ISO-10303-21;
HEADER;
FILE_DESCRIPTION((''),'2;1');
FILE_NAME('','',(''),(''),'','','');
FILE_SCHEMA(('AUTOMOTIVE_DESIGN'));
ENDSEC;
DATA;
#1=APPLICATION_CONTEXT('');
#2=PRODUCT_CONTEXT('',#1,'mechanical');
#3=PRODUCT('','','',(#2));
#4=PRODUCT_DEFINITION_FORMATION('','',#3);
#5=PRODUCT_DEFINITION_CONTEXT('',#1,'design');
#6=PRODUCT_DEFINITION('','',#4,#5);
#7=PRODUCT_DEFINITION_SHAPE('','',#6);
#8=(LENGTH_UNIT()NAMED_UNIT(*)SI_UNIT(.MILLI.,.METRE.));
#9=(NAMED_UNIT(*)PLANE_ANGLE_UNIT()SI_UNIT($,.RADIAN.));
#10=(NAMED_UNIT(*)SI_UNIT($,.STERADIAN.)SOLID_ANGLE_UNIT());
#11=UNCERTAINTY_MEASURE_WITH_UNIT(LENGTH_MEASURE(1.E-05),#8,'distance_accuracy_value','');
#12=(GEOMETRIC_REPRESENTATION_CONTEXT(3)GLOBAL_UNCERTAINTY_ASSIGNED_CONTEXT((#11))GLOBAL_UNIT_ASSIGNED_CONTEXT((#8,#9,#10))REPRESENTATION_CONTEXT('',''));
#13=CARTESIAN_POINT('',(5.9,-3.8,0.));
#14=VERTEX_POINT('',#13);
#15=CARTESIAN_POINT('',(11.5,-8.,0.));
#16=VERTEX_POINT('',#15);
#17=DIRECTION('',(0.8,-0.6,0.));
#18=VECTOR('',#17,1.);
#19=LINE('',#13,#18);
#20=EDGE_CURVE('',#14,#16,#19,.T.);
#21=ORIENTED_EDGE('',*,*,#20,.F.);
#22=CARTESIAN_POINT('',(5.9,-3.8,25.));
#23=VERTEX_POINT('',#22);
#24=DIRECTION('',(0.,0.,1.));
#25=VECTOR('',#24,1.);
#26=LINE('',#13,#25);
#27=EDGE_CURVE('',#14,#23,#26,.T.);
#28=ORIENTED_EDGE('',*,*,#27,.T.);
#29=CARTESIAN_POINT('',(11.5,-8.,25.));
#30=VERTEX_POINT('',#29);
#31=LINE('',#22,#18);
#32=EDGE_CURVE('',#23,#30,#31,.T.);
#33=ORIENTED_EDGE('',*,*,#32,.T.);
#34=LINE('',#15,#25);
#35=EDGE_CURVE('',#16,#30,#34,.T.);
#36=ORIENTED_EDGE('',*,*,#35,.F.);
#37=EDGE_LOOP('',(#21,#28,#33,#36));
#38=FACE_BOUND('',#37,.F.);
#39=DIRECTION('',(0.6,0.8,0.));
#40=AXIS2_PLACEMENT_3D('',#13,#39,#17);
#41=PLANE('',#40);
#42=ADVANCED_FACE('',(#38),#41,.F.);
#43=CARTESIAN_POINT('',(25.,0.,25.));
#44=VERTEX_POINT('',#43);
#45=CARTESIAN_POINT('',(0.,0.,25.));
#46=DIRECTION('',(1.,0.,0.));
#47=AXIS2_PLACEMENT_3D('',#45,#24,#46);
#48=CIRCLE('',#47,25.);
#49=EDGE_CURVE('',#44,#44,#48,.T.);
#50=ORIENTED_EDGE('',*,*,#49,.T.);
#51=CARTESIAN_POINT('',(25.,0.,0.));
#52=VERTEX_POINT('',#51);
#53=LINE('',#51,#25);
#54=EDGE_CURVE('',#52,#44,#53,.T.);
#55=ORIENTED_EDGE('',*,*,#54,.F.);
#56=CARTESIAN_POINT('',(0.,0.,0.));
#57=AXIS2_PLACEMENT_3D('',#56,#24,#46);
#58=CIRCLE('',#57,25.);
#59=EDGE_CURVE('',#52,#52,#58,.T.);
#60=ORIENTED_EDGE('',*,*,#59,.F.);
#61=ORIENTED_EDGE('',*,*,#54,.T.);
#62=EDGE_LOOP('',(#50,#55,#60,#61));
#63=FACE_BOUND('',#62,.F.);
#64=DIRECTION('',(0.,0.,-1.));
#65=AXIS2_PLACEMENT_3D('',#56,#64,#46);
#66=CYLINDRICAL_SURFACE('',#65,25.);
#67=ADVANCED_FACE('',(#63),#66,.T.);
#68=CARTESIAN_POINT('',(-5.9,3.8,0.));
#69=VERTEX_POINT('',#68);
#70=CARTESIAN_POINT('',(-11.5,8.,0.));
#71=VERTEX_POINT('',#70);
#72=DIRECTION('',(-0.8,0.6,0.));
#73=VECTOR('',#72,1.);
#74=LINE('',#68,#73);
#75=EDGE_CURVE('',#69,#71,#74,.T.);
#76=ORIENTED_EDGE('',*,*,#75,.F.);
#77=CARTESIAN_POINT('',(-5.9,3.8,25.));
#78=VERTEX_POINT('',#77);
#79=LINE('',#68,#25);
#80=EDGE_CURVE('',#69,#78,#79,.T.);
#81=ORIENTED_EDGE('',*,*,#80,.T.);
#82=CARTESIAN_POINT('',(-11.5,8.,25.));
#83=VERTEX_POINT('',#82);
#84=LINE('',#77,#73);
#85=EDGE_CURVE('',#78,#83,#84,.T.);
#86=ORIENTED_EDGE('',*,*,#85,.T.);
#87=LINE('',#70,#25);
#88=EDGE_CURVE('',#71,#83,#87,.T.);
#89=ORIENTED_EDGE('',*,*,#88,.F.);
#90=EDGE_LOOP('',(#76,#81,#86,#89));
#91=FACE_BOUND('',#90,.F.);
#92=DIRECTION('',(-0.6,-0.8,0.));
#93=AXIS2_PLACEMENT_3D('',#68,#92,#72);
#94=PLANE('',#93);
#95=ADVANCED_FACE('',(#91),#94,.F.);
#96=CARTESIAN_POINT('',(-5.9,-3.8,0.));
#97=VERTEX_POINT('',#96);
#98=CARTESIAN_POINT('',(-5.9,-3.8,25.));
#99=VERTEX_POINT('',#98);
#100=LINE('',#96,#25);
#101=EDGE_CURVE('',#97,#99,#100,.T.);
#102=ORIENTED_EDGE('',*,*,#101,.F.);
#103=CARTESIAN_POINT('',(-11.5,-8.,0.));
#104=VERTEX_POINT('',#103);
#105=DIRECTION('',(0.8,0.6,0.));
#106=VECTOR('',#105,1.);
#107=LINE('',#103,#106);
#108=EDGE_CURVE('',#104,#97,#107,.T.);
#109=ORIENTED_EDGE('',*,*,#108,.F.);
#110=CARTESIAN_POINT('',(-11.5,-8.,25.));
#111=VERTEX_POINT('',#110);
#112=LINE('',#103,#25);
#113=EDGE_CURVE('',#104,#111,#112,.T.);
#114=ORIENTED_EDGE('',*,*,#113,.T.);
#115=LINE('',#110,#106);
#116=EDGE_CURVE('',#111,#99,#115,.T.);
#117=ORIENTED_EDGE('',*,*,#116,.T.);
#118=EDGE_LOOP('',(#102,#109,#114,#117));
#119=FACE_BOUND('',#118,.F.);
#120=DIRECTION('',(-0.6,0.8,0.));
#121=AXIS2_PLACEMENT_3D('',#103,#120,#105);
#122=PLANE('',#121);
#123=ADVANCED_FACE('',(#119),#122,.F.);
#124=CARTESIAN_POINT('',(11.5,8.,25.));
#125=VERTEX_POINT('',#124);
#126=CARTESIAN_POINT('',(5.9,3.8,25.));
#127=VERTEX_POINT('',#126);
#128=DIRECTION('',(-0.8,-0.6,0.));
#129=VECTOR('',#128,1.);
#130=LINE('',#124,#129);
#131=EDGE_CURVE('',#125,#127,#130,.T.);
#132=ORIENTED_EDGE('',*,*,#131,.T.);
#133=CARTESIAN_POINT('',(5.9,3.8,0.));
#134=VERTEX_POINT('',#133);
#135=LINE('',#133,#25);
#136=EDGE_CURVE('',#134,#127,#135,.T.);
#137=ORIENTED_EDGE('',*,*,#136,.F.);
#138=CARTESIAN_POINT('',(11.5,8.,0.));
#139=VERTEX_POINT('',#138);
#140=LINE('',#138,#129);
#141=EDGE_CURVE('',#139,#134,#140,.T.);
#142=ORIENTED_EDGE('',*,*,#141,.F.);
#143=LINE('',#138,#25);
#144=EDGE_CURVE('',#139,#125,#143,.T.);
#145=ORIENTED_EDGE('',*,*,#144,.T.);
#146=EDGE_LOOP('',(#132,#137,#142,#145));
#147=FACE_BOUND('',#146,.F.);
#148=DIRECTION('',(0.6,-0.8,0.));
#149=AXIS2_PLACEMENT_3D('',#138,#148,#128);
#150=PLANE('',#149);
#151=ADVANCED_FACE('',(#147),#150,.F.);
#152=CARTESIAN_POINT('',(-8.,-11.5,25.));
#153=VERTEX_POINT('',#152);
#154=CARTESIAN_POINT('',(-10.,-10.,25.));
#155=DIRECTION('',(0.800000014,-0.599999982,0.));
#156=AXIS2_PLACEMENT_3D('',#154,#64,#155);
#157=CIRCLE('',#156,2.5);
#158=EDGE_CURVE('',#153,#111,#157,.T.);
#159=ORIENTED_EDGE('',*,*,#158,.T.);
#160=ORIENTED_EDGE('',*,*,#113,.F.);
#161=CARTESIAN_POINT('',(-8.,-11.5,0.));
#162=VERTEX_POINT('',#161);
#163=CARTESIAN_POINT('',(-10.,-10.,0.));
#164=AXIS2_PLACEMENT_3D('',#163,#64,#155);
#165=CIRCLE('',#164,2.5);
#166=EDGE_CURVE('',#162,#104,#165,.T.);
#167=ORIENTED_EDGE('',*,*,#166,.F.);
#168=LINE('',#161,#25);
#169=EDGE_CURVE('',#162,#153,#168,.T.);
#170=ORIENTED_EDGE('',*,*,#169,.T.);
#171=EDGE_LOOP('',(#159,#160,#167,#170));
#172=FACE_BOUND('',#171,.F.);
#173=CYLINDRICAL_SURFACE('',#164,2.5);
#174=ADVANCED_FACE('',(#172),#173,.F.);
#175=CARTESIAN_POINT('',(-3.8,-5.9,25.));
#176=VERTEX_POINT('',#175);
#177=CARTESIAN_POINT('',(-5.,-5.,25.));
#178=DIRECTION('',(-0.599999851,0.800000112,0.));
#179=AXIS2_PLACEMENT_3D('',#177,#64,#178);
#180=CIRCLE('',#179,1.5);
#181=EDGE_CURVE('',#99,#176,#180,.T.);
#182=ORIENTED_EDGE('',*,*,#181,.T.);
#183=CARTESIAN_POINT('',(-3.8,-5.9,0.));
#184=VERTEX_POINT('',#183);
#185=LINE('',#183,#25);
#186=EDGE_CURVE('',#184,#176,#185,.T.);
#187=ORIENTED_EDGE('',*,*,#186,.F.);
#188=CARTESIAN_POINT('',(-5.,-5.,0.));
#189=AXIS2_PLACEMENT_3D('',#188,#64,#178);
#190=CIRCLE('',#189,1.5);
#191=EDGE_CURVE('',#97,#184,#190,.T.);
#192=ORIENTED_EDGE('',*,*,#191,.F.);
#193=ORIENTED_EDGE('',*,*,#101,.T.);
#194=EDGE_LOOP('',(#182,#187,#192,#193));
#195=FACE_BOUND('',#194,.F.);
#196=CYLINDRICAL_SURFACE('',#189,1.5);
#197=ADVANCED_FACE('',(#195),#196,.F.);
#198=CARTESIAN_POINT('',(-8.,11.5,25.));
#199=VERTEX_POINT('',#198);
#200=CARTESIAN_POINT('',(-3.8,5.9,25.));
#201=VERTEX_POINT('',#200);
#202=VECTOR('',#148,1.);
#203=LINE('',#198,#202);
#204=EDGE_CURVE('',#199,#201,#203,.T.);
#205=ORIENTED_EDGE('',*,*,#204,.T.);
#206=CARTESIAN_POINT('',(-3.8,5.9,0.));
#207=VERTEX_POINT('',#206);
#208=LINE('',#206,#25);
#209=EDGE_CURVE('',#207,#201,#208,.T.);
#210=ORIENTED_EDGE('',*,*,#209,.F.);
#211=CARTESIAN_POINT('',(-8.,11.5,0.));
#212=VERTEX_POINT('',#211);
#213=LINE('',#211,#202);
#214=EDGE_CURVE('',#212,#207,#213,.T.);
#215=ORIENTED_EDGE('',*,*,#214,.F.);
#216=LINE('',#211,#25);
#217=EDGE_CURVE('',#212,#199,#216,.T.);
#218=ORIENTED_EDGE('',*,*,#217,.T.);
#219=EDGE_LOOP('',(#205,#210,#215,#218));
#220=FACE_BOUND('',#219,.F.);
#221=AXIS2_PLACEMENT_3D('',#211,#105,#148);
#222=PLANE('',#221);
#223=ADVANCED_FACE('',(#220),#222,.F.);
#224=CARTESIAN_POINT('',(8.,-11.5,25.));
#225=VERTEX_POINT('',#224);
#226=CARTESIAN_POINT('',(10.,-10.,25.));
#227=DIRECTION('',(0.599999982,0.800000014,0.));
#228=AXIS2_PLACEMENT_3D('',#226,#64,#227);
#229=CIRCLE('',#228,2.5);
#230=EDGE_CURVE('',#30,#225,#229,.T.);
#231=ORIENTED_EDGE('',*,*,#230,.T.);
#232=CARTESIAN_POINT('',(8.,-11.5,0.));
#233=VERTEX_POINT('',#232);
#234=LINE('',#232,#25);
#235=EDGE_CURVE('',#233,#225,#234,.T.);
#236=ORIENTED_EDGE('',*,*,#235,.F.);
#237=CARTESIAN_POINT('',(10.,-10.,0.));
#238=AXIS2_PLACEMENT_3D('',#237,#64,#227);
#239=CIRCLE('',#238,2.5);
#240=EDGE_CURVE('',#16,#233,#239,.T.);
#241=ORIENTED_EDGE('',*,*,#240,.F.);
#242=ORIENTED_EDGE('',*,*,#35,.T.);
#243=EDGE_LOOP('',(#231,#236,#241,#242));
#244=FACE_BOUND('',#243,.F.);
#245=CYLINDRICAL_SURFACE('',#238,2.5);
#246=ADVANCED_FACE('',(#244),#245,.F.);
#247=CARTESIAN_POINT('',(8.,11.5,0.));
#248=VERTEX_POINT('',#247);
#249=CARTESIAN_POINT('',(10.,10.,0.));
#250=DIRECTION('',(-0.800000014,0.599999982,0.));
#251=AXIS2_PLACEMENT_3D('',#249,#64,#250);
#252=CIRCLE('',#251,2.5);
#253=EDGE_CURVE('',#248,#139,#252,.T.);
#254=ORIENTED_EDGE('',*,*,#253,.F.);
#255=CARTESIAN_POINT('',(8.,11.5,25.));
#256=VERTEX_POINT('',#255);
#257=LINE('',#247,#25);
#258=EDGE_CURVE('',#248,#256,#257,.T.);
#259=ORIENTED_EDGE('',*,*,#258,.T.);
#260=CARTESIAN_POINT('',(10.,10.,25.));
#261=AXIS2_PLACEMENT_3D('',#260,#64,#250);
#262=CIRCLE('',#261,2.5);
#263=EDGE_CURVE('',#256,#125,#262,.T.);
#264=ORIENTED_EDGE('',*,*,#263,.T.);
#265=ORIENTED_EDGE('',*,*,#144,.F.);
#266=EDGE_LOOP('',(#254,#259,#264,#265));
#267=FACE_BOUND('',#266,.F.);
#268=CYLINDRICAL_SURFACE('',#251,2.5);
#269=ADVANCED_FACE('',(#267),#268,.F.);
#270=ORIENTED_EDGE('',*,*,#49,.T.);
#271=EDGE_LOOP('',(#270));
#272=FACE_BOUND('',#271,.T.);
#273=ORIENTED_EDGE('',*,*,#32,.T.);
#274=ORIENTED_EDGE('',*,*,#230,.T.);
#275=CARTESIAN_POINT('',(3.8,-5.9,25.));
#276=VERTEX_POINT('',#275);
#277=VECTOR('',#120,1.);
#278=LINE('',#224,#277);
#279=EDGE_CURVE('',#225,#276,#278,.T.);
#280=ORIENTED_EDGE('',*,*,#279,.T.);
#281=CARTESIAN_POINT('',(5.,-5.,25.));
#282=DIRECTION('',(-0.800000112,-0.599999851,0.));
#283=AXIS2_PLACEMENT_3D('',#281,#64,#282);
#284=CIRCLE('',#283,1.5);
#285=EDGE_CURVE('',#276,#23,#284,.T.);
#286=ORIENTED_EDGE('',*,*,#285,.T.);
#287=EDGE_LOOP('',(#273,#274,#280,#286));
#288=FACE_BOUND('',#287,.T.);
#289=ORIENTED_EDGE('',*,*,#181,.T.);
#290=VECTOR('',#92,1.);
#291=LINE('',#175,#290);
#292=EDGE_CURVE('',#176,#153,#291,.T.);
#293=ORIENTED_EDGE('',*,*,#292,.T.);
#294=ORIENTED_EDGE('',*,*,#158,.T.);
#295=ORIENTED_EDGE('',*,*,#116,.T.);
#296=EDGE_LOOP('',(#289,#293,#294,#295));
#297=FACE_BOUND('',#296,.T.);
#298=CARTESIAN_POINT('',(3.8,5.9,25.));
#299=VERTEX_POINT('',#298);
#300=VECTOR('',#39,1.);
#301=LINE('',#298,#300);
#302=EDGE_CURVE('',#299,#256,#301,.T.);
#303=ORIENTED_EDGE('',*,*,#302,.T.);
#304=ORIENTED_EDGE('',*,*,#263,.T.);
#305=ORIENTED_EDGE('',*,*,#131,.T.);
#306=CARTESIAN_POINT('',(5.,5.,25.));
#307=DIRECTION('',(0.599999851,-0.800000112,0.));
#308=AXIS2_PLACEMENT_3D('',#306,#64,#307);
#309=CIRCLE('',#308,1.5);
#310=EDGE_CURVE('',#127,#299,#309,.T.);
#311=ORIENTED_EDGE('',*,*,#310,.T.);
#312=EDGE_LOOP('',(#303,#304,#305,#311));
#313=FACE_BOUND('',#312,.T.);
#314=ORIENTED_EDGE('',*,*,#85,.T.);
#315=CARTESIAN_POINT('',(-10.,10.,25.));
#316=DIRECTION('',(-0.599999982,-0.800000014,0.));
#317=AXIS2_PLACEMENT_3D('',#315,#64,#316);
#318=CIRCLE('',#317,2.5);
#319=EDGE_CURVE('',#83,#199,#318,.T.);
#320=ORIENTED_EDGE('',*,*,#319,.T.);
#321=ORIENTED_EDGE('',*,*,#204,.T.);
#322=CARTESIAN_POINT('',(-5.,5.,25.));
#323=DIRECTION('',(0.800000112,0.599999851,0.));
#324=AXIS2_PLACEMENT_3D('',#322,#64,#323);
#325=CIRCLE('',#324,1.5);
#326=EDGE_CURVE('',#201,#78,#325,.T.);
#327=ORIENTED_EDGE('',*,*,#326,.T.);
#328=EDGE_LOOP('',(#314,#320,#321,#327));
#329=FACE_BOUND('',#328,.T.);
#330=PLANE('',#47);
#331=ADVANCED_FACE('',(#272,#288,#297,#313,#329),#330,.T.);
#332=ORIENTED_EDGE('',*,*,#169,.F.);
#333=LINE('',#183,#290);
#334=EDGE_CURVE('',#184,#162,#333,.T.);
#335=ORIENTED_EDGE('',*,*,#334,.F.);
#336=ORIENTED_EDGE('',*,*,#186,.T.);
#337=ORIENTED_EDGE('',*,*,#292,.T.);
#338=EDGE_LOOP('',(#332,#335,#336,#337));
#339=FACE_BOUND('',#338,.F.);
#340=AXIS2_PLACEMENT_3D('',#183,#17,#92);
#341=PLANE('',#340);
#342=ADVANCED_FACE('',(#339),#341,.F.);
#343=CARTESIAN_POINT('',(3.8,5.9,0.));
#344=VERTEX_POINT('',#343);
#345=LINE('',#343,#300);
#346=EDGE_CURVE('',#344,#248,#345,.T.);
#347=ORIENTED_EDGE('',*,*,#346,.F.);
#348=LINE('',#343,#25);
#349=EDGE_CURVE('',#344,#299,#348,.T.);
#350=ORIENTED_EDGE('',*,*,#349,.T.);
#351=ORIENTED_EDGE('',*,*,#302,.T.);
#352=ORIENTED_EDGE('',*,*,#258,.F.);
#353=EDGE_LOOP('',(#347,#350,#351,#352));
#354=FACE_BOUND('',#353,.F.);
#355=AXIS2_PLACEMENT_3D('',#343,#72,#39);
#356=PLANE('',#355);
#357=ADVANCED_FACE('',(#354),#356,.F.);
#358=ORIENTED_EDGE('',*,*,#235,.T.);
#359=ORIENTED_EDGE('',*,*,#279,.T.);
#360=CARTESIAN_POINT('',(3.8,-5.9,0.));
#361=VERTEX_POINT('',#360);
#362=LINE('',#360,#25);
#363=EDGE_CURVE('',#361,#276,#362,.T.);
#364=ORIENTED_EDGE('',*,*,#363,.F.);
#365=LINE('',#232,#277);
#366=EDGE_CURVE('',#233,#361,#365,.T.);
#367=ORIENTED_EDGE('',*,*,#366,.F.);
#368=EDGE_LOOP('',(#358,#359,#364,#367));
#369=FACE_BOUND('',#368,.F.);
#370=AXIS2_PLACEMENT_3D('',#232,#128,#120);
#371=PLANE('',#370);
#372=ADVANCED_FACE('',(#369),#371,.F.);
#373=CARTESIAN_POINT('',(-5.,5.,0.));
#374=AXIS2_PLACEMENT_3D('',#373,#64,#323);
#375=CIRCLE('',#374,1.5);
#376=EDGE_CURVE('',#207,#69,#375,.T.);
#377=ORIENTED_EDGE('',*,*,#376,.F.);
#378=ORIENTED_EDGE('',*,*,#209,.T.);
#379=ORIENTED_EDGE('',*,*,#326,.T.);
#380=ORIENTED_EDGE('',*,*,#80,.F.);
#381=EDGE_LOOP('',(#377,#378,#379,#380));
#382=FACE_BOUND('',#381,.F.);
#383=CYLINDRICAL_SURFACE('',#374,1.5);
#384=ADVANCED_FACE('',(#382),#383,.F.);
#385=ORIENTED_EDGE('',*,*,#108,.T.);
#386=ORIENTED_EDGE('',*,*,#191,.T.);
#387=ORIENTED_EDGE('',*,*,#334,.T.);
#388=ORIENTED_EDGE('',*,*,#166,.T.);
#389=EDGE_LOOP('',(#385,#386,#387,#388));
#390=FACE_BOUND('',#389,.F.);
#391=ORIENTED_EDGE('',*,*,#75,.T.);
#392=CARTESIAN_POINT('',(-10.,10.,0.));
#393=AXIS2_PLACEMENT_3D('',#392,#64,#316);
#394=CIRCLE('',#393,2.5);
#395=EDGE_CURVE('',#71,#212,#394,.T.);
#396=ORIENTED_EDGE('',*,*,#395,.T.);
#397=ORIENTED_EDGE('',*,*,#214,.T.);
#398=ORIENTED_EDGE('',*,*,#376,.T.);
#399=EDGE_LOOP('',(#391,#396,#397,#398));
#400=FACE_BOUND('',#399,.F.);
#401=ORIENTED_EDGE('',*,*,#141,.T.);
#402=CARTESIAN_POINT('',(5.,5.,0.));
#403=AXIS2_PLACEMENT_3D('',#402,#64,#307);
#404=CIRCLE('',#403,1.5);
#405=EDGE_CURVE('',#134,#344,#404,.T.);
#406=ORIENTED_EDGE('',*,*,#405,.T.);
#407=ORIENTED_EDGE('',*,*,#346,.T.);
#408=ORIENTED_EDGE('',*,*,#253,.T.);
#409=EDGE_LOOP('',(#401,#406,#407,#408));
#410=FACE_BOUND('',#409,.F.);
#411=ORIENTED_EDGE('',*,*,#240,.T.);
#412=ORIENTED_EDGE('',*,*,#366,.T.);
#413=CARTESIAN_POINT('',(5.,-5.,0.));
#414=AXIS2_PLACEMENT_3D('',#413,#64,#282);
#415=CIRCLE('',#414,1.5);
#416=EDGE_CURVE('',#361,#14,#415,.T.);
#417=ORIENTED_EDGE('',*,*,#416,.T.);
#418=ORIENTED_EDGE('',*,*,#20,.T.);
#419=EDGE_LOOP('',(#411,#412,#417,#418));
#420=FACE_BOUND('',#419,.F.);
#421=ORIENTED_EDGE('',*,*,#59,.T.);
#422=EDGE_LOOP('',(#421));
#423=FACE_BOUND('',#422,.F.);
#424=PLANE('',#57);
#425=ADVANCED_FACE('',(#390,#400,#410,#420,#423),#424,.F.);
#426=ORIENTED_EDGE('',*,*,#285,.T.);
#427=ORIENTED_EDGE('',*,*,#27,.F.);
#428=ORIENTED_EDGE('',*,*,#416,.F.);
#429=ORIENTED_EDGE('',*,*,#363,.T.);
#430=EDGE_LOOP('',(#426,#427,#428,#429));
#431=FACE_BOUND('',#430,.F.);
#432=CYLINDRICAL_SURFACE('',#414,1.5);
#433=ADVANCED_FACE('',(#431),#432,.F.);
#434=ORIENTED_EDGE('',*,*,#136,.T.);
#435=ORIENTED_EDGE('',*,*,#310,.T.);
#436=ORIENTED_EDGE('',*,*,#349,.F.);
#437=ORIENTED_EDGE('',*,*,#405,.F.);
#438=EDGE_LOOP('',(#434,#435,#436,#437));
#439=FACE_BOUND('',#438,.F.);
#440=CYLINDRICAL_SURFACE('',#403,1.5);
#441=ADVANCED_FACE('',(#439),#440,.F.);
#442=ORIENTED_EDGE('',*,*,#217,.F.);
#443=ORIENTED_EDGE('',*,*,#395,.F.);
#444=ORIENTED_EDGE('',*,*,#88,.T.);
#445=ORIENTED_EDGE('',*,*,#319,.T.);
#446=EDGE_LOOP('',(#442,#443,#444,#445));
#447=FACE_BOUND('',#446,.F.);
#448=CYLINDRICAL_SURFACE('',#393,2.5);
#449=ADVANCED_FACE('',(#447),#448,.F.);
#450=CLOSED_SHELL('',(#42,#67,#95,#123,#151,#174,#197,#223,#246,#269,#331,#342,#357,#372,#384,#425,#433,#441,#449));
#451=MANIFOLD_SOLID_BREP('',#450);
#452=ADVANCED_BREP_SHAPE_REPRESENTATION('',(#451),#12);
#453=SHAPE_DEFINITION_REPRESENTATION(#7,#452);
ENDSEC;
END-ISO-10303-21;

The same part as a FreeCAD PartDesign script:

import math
import FreeCAD as App
import Part
import Sketcher
Q = App.Units.Quantity

doc = App.newDocument("Part")
body = doc.addObject("PartDesign::Body", "Body")

# Sketch on XY plane
sketch1 = body.newObject("Sketcher::SketchObject", "Sketch")
sketch1.AttachmentSupport = (doc.getObject("XY_Plane"), [""])
sketch1.MapMode = "FlatFace"
sketch1.addGeometry(Part.Circle(App.Vector(0, 0, 0), App.Vector(0, 0, 1), 25), False)
sketch1.addGeometry(Part.ArcOfCircle(Part.Circle(App.Vector(-10, -10, 0), App.Vector(0, 0, 1), 2.5), math.radians(127), math.radians(323)), False)
sketch1.addGeometry(Part.LineSegment(App.Vector(-11.5, -8, 0), App.Vector(-5.9, -3.8, 0)), False)
sketch1.addGeometry(Part.ArcOfCircle(Part.Circle(App.Vector(-5, -5, 0), App.Vector(0, 0, 1), 1.5), math.radians(-37), math.radians(127)), False)
sketch1.addGeometry(Part.LineSegment(App.Vector(-3.8, -5.9, 0), App.Vector(-8, -11.5, 0)), False)
sketch1.addGeometry(Part.LineSegment(App.Vector(5.9, -3.8, 0), App.Vector(11.5, -8, 0)), False)
sketch1.addGeometry(Part.ArcOfCircle(Part.Circle(App.Vector(10, -10, 0), App.Vector(0, 0, 1), 2.5), math.radians(-143), math.radians(53)), False)
sketch1.addGeometry(Part.LineSegment(App.Vector(8, -11.5, 0), App.Vector(3.8, -5.9, 0)), False)
sketch1.addGeometry(Part.ArcOfCircle(Part.Circle(App.Vector(5, -5, 0), App.Vector(0, 0, 1), 1.5), math.radians(53), math.radians(217)), False)
sketch1.addGeometry(Part.LineSegment(App.Vector(-5.9, 3.8, 0), App.Vector(-11.5, 8, 0)), False)
sketch1.addGeometry(Part.ArcOfCircle(Part.Circle(App.Vector(-10, 10, 0), App.Vector(0, 0, 1), 2.5), math.radians(37), math.radians(233)), False)
sketch1.addGeometry(Part.LineSegment(App.Vector(-8, 11.5, 0), App.Vector(-3.8, 5.9, 0)), False)
sketch1.addGeometry(Part.ArcOfCircle(Part.Circle(App.Vector(-5, 5, 0), App.Vector(0, 0, 1), 1.5), math.radians(-127), math.radians(37)), False)
sketch1.addGeometry(Part.ArcOfCircle(Part.Circle(App.Vector(5, 5, 0), App.Vector(0, 0, 1), 1.5), math.radians(143), math.radians(307)), False)
sketch1.addGeometry(Part.LineSegment(App.Vector(3.8, 5.9, 0), App.Vector(8, 11.5, 0)), False)
sketch1.addGeometry(Part.ArcOfCircle(Part.Circle(App.Vector(10, 10, 0), App.Vector(0, 0, 1), 2.5), math.radians(-53), math.radians(143)), False)
sketch1.addGeometry(Part.LineSegment(App.Vector(11.5, 8, 0), App.Vector(5.9, 3.8, 0)), False)
sketch1.addConstraint(Sketcher.Constraint("Tangent", 1, 1, 2, 1))
sketch1.addConstraint(Sketcher.Constraint("Tangent", 2, 2, 3, 2))
sketch1.addConstraint(Sketcher.Constraint("Tangent", 3, 1, 4, 1))
sketch1.addConstraint(Sketcher.Constraint("Tangent", 4, 2, 1, 2))
sketch1.addConstraint(Sketcher.Constraint("Tangent", 5, 2, 6, 2))
sketch1.addConstraint(Sketcher.Constraint("Tangent", 6, 1, 7, 1))
sketch1.addConstraint(Sketcher.Constraint("Tangent", 7, 2, 8, 2))
sketch1.addConstraint(Sketcher.Constraint("Tangent", 8, 1, 5, 1))
sketch1.addConstraint(Sketcher.Constraint("Tangent", 9, 2, 10, 2))
sketch1.addConstraint(Sketcher.Constraint("Tangent", 10, 1, 11, 1))
sketch1.addConstraint(Sketcher.Constraint("Tangent", 11, 2, 12, 2))
sketch1.addConstraint(Sketcher.Constraint("Tangent", 12, 1, 9, 1))
sketch1.addConstraint(Sketcher.Constraint("Tangent", 13, 1, 14, 1))
sketch1.addConstraint(Sketcher.Constraint("Tangent", 14, 2, 15, 2))
sketch1.addConstraint(Sketcher.Constraint("Tangent", 15, 1, 16, 1))
sketch1.addConstraint(Sketcher.Constraint("Tangent", 16, 2, 13, 2))
sketch1.addConstraint(Sketcher.Constraint("Coincident", 0, 3, -1, 1))
sketch1.addConstraint(Sketcher.Constraint("Equal", 1, 6))
sketch1.addConstraint(Sketcher.Constraint("Equal", 3, 8))
sketch1.addConstraint(Sketcher.Constraint("Equal", 6, 10))
sketch1.addConstraint(Sketcher.Constraint("Equal", 8, 12))
sketch1.addConstraint(Sketcher.Constraint("Equal", 12, 13))
sketch1.addConstraint(Sketcher.Constraint("Equal", 10, 15))
sketch1.addConstraint(Sketcher.Constraint("Symmetric", 6, 3, 10, 3, -1, 1))
sketch1.addConstraint(Sketcher.Constraint("Symmetric", 8, 3, 12, 3, -1, 1))
sketch1.addConstraint(Sketcher.Constraint("Symmetric", 3, 3, 13, 3, -1, 1))
sketch1.addConstraint(Sketcher.Constraint("Symmetric", 1, 3, 15, 3, -1, 1))
sketch1.addConstraint(Sketcher.Constraint("Symmetric", 1, 3, 6, 3, -2))
sketch1.addConstraint(Sketcher.Constraint("Symmetric", 3, 3, 8, 3, -2))
sketch1.addConstraint(Sketcher.Constraint("Perpendicular", 4, 5))
sketch1.addConstraint(Sketcher.Constraint("Diameter", 0, Q("50 mm")))
sketch1.addConstraint(Sketcher.Constraint("Radius", 1, Q("2.5 mm")))
sketch1.addConstraint(Sketcher.Constraint("Radius", 3, Q("1.5 mm")))
sketch1.addConstraint(Sketcher.Constraint("Distance", 2, Q("7 mm")))
sketch1.addConstraint(Sketcher.Constraint("DistanceX", 1, 3, -1, 1, Q("10 mm")))
sketch1.addConstraint(Sketcher.Constraint("DistanceY", 1, 3, -1, 1, Q("10 mm")))
pad1 = body.newObject("PartDesign::Pad", "Pad")
pad1.Profile = sketch1
pad1.Length = 25

doc.recompute()
